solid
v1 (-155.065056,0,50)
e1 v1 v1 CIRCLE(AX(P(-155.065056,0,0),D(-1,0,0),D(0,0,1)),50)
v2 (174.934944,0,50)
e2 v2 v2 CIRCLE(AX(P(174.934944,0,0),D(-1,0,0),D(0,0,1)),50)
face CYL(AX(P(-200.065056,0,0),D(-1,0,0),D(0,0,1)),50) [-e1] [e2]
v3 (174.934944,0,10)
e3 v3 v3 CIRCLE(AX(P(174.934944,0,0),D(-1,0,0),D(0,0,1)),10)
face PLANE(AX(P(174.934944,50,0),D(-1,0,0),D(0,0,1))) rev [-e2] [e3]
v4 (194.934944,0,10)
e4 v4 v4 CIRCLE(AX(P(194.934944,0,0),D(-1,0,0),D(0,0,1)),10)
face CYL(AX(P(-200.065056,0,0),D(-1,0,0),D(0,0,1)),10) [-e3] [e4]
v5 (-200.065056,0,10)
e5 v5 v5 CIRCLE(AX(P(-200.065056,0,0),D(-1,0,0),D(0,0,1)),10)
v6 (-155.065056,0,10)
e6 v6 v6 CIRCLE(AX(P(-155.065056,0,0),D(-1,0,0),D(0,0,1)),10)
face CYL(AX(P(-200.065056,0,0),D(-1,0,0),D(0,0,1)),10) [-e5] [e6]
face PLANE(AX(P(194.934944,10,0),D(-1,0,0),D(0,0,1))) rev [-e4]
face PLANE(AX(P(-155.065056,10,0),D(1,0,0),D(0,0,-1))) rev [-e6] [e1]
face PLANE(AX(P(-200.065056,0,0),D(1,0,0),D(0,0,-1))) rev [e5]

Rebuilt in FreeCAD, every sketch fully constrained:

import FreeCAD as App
import Part
import Sketcher
from FreeCAD import Vector
Q = App.Units.Quantity

doc = App.newDocument("Part")
body = doc.addObject("PartDesign::Body", "Body")

# Sketch on XY plane
sketch1 = body.newObject("Sketcher::SketchObject", "Sketch")
sketch1.AttachmentSupport = (doc.getObject("XY_Plane"), [""])
sketch1.MapMode = "FlatFace"
sketch1.addGeometry(Part.LineSegment(Vector(-200, 10, 0), Vector(-200, 0, 0)), False)
sketch1.addGeometry(Part.LineSegment(Vector(-200, 0, 0), Vector(195, 0, 0)), False)
sketch1.addGeometry(Part.LineSegment(Vector(195, 0, 0), Vector(195, 10, 0)), False)
sketch1.addGeometry(Part.LineSegment(Vector(195, 10, 0), Vector(175, 10, 0)), False)
sketch1.addGeometry(Part.LineSegment(Vector(175, 10, 0), Vector(175, 50, 0)), False)
sketch1.addGeometry(Part.LineSegment(Vector(175, 50, 0), Vector(-155, 50, 0)), False)
sketch1.addGeometry(Part.LineSegment(Vector(-155, 50, 0), Vector(-155, 10, 0)), False)
sketch1.addGeometry(Part.LineSegment(Vector(-155, 10, 0), Vector(-200, 10, 0)), False)
sketch1.addConstraint(Sketcher.Constraint("Coincident", 0, 2, 1, 1))
sketch1.addConstraint(Sketcher.Constraint("Coincident", 1, 2, 2, 1))
sketch1.addConstraint(Sketcher.Constraint("Coincident", 2, 2, 3, 1))
sketch1.addConstraint(Sketcher.Constraint("Coincident", 3, 2, 4, 1))
sketch1.addConstraint(Sketcher.Constraint("Coincident", 4, 2, 5, 1))
sketch1.addConstraint(Sketcher.Constraint("Coincident", 5, 2, 6, 1))
sketch1.addConstraint(Sketcher.Constraint("Coincident", 6, 2, 7, 1))
sketch1.addConstraint(Sketcher.Constraint("Coincident", 7, 2, 0, 1))
sketch1.addConstraint(Sketcher.Constraint("Vertical", 0))
sketch1.addConstraint(Sketcher.Constraint("Horizontal", 1))
sketch1.addConstraint(Sketcher.Constraint("Vertical", 2))
sketch1.addConstraint(Sketcher.Constraint("Horizontal", 3))
sketch1.addConstraint(Sketcher.Constraint("Vertical", 4))
sketch1.addConstraint(Sketcher.Constraint("Horizontal", 5))
sketch1.addConstraint(Sketcher.Constraint("Vertical", 6))
sketch1.addConstraint(Sketcher.Constraint("Horizontal", 7))
sketch1.addConstraint(Sketcher.Constraint("PointOnObject", 0, 2, -1))
sketch1.addConstraint(Sketcher.Constraint("Horizontal", 3, 2, 6, 2))
sketch1.addConstraint(Sketcher.Constraint("DistanceX", 1, 1, 1, 2, Q("395 mm")))
sketch1.addConstraint(Sketcher.Constraint("DistanceX", 3, 2, 3, 1, Q("20 mm")))
sketch1.addConstraint(Sketcher.Constraint("DistanceX", 5, 2, 5, 1, Q("330 mm")))
sketch1.addConstraint(Sketcher.Constraint("DistanceY", 0, 2, 0, 1, Q("10 mm")))
sketch1.addConstraint(Sketcher.Constraint("DistanceY", 4, 1, 4, 2, Q("40 mm")))
sketch1.addConstraint(Sketcher.Constraint("DistanceX", 0, 2, -1, 1, Q("200.065056 mm")))
revolution = body.newObject("PartDesign::Revolution", "Revolution")
revolution.Profile = sketch1
revolution.ReferenceAxis = (sketch1, ["H_Axis"])
revolution.Angle = 360

doc.recompute()
